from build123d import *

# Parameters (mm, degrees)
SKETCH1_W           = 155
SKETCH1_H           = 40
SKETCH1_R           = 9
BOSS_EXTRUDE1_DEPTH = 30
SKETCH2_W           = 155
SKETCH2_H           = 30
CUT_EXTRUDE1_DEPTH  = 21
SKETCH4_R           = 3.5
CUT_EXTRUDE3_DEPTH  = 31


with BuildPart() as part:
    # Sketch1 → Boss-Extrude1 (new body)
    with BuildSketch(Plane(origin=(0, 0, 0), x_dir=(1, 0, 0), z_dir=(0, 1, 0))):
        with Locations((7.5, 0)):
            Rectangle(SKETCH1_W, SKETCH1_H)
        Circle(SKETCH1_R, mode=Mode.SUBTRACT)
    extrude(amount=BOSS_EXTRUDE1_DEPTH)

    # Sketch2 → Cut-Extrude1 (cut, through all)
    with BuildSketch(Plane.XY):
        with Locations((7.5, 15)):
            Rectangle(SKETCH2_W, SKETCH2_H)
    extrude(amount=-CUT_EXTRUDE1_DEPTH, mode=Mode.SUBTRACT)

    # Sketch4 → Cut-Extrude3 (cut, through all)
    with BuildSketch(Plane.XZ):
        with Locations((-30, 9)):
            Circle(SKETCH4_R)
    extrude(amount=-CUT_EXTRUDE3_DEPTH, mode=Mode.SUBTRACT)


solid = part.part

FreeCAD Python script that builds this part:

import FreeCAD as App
import Part
import Sketcher
from FreeCAD import Vector
Q = App.Units.Quantity

doc = App.newDocument("Part")
body = doc.addObject("PartDesign::Body", "Body")

# Sketch on XZ plane
sketch1 = body.newObject("Sketcher::SketchObject", "Sketch")
sketch1.AttachmentSupport = (doc.getObject("XZ_Plane"), [""])
sketch1.MapMode = "FlatFace"
sketch1.addGeometry(Part.LineSegment(Vector(-70, -20, 0), Vector(-70, 20, 0)), False)
sketch1.addGeometry(Part.LineSegment(Vector(-70, 20, 0), Vector(85, 20, 0)), False)
sketch1.addGeometry(Part.LineSegment(Vector(85, 20, 0), Vector(85, -20, 0)), False)
sketch1.addGeometry(Part.LineSegment(Vector(85, -20, 0), Vector(-70, -20, 0)), False)
sketch1.addGeometry(Part.Circle(Vector(0, 0, 0), Vector(0, 0, 1), 9), False)
sketch1.addConstraint(Sketcher.Constraint("Coincident", 0, 2, 1, 1))
sketch1.addConstraint(Sketcher.Constraint("Coincident", 1, 2, 2, 1))
sketch1.addConstraint(Sketcher.Constraint("Coincident", 2, 2, 3, 1))
sketch1.addConstraint(Sketcher.Constraint("Coincident", 3, 2, 0, 1))
sketch1.addConstraint(Sketcher.Constraint("Vertical", 0))
sketch1.addConstraint(Sketcher.Constraint("Horizontal", 1))
sketch1.addConstraint(Sketcher.Constraint("Vertical", 2))
sketch1.addConstraint(Sketcher.Constraint("Horizontal", 3))
sketch1.addConstraint(Sketcher.Constraint("Coincident", 4, 3, -1, 1))
sketch1.addConstraint(Sketcher.Constraint("Diameter", 4, Q("18 mm")))
sketch1.addConstraint(Sketcher.Constraint("DistanceX", 1, 1, 1, 2, Q("155 mm")))
sketch1.addConstraint(Sketcher.Constraint("DistanceY", 0, 1, 0, 2, Q("40 mm")))
sketch1.addConstraint(Sketcher.Constraint("DistanceX", 0, 2, -1, 1, Q("70 mm")))
sketch1.addConstraint(Sketcher.Constraint("DistanceY", -1, 1, 0, 2, Q("20 mm")))
pad1 = body.newObject("PartDesign::Pad", "Pad")
pad1.Profile = sketch1
pad1.Length = 30
pad1.Reversed = True

# Sketch on XY plane
sketch2 = body.newObject("Sketcher::SketchObject", "Sketch001")
sketch2.AttachmentSupport = (doc.getObject("XY_Plane"), [""])
sketch2.MapMode = "FlatFace"
sketch2.addGeometry(Part.LineSegment(Vector(-70, 30, 0), Vector(-70, 0, 0)), False)
sketch2.addGeometry(Part.LineSegment(Vector(-70, 0, 0), Vector(85, 0, 0)), False)
sketch2.addGeometry(Part.LineSegment(Vector(85, 0, 0), Vector(85, 30, 0)), False)
sketch2.addGeometry(Part.LineSegment(Vector(85, 30, 0), Vector(-70, 30, 0)), False)
sketch2.addConstraint(Sketcher.Constraint("Coincident", 0, 2, 1, 1))
sketch2.addConstraint(Sketcher.Constraint("Coincident", 1, 2, 2, 1))
sketch2.addConstraint(Sketcher.Constraint("Coincident", 2, 2, 3, 1))
sketch2.addConstraint(Sketcher.Constraint("Coincident", 3, 2, 0, 1))
sketch2.addConstraint(Sketcher.Constraint("Vertical", 0))
sketch2.addConstraint(Sketcher.Constraint("Horizontal", 1))
sketch2.addConstraint(Sketcher.Constraint("Vertical", 2))
sketch2.addConstraint(Sketcher.Constraint("Horizontal", 3))
sketch2.addConstraint(Sketcher.Constraint("PointOnObject", 0, 2, -1))
sketch2.addConstraint(Sketcher.Constraint("DistanceX", 1, 1, 1, 2, Q("155 mm")))
sketch2.addConstraint(Sketcher.Constraint("DistanceY", 0, 2, 0, 1, Q("30 mm")))
sketch2.addConstraint(Sketcher.Constraint("DistanceX", 0, 2, -1, 1, Q("70 mm")))
pocket1 = body.newObject("PartDesign::Pocket", "Pocket")
pocket1.Profile = sketch2
pocket1.Type = "ThroughAll"

# Sketch on XZ plane
sketch3 = body.newObject("Sketcher::SketchObject", "Sketch002")
sketch3.AttachmentSupport = (doc.getObject("XZ_Plane"), [""])
sketch3.MapMode = "FlatFace"
sketch3.addGeometry(Part.Circle(Vector(-30, 9, 0), Vector(0, 0, 1), 3.5), False)
sketch3.addConstraint(Sketcher.Constraint("Diameter", 0, Q("7 mm")))
sketch3.addConstraint(Sketcher.Constraint("DistanceX", 0, 3, -1, 1, Q("30 mm")))
sketch3.addConstraint(Sketcher.Constraint("DistanceY", -1, 1, 0, 3, Q("9 mm")))
pocket2 = body.newObject("PartDesign::Pocket", "Pocket001")
pocket2.Profile = sketch3
pocket2.Type = "ThroughAll"

doc.recompute()
